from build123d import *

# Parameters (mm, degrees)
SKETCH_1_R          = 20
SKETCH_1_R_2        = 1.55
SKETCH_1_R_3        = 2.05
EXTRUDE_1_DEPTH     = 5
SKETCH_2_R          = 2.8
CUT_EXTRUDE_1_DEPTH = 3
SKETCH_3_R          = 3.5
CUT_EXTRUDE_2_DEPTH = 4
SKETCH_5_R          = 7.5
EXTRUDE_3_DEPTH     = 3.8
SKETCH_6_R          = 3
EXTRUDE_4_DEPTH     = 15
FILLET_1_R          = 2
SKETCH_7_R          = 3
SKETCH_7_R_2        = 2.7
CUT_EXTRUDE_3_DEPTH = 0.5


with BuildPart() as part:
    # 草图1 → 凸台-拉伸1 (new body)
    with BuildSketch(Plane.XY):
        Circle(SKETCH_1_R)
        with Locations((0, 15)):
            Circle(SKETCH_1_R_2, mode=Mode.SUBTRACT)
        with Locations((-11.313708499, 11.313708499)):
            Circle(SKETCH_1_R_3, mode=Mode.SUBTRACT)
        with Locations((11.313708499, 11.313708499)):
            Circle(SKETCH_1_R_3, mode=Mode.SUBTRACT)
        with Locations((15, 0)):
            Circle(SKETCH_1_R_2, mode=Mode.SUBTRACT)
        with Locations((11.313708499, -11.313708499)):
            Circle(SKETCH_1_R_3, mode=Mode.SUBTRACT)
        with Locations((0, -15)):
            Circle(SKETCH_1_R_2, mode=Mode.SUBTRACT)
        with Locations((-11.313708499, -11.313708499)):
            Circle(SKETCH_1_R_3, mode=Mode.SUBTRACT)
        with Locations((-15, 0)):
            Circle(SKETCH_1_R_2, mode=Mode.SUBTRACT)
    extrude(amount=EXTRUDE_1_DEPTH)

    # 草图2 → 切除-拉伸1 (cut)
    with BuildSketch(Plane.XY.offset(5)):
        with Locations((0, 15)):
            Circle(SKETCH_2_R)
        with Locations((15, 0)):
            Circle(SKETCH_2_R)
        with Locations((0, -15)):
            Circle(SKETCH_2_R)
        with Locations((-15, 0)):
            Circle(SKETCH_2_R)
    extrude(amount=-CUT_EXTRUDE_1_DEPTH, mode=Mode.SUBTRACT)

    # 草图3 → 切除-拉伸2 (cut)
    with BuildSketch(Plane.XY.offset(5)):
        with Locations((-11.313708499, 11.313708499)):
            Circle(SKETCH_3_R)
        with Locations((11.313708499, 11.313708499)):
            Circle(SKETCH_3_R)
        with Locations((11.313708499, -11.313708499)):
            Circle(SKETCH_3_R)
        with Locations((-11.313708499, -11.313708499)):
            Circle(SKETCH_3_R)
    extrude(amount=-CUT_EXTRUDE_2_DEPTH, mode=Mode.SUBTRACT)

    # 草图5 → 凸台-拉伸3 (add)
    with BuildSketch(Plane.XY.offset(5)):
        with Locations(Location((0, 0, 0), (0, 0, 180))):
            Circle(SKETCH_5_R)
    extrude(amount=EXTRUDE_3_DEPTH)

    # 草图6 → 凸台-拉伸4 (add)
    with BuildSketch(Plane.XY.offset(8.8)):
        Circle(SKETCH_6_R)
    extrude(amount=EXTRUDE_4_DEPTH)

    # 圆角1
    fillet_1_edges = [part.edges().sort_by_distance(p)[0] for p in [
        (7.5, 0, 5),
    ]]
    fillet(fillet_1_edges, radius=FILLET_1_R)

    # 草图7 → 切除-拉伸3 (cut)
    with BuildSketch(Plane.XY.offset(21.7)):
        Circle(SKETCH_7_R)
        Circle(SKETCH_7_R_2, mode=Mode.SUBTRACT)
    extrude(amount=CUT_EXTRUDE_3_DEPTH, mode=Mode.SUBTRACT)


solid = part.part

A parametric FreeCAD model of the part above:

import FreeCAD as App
import Part
import Sketcher
from FreeCAD import Vector


def edges_at(feature, points):
    """Names of the edges that pass closest to the given points."""
    edges = feature.Shape.Edges
    near = lambda p: min(range(len(edges)), key=lambda i: edges[i].distToShape(Part.Vertex(*p))[0])
    return sorted({f"Edge{near(p) + 1}" for p in points})

doc = App.newDocument("Part")
body = doc.addObject("PartDesign::Body", "Body")

# Sketch on XY plane
sketch1 = body.newObject("Sketcher::SketchObject", "Sketch")
sketch1.AttachmentSupport = (doc.getObject("XY_Plane"), [""])
sketch1.MapMode = "FlatFace"
sketch1.addGeometry([
    Part.Circle(Vector(0, 0, 0), Vector(0, 0, 1), 20),  # 0
    Part.Circle(Vector(-11.3, -11.3, 0), Vector(0, 0, 1), 2),  # 1
    Part.Circle(Vector(0, -15, 0), Vector(0, 0, 1), 1.6),  # 2
    Part.Circle(Vector(11.3, -11.3, 0), Vector(0, 0, 1), 2),  # 3
    Part.Circle(Vector(-15, 0, 0), Vector(0, 0, 1), 1.6),  # 4
    Part.Circle(Vector(-11.3, 11.3, 0), Vector(0, 0, 1), 2),  # 5
    Part.Circle(Vector(0, 15, 0), Vector(0, 0, 1), 1.6),  # 6
    Part.Circle(Vector(15, 0, 0), Vector(0, 0, 1), 1.6),  # 7
    Part.Circle(Vector(11.3, 11.3, 0), Vector(0, 0, 1), 2),  # 8
], False)
sketch1.addConstraint([
    Sketcher.Constraint("Coincident", 0, 3, -1, 1),
    Sketcher.Constraint("Equal", 1, 3),
    Sketcher.Constraint("Equal", 2, 4),
    Sketcher.Constraint("Equal", 3, 5),
    Sketcher.Constraint("Equal", 4, 6),
    Sketcher.Constraint("Equal", 6, 7),
    Sketcher.Constraint("Equal", 5, 8),
    Sketcher.Constraint("Symmetric", 3, 3, 5, 3, -1, 1),
    Sketcher.Constraint("Symmetric", 2, 3, 6, 3, -1, 1),
    Sketcher.Constraint("Symmetric", 4, 3, 7, 3, -1, 1),
    Sketcher.Constraint("Symmetric", 1, 3, 8, 3, -1, 1),
    Sketcher.Constraint("Symmetric", 1, 3, 3, 3, -2),
    Sketcher.Constraint("PointOnObject", 2, 3, -2),
    Sketcher.Constraint("PointOnObject", 4, 3, -1),
    Sketcher.Constraint("Diameter", 0, 40.0),
    Sketcher.Constraint("Diameter", 1, 4.1),
    Sketcher.Constraint("Diameter", 2, 3.1),
    Sketcher.Constraint("DistanceY", 2, 3, -1, 1, 15.0),
    Sketcher.Constraint("DistanceX", 4, 3, -1, 1, 15.0),
    Sketcher.Constraint("DistanceX", 1, 3, -1, 1, 11.313708),
    Sketcher.Constraint("DistanceY", 1, 3, -1, 1, 11.313708),
])
pad1 = body.newObject("PartDesign::Pad", "Pad")
pad1.Profile = sketch1
pad1.Length = 5

# Sketch on XY plane
sketch2 = body.newObject("Sketcher::SketchObject", "Sketch001")
sketch2.AttachmentSupport = (doc.getObject("XY_Plane"), [""])
sketch2.MapMode = "FlatFace"
sketch2.AttachmentOffset = App.Placement(Vector(0, 0, 5), App.Rotation())
sketch2.addGeometry([
    Part.Circle(Vector(0, 15, 0), Vector(0, 0, 1), 2.8),
    Part.Circle(Vector(15, 0, 0), Vector(0, 0, 1), 2.8),
    Part.Circle(Vector(0, -15, 0), Vector(0, 0, 1), 2.8),
    Part.Circle(Vector(-15, 0, 0), Vector(0, 0, 1), 2.8),
], False)
sketch2.addConstraint([
    Sketcher.Constraint("Equal", 0, 1),
    Sketcher.Constraint("Equal", 1, 2),
    Sketcher.Constraint("Equal", 2, 3),
    Sketcher.Constraint("Symmetric", 0, 3, 2, 3, -1, 1),
    Sketcher.Constraint("Symmetric", 1, 3, 3, 3, -1, 1),
    Sketcher.Constraint("PointOnObject", 0, 3, -2),
    Sketcher.Constraint("PointOnObject", 1, 3, -1),
    Sketcher.Constraint("Diameter", 0, 5.6),
    Sketcher.Constraint("DistanceY", -1, 1, 0, 3, 15.0),
    Sketcher.Constraint("DistanceX", -1, 1, 1, 3, 15.0),
])
pocket1 = body.newObject("PartDesign::Pocket", "Pocket")
pocket1.Profile = sketch2
pocket1.Length = 3

# Sketch on XY plane
sketch3 = body.newObject("Sketcher::SketchObject", "Sketch002")
sketch3.AttachmentSupport = (doc.getObject("XY_Plane"), [""])
sketch3.MapMode = "FlatFace"
sketch3.AttachmentOffset = App.Placement(Vector(0, 0, 5), App.Rotation())
sketch3.addGeometry([
    Part.Circle(Vector(-11.3, 11.3, 0), Vector(0, 0, 1), 3.5),
    Part.Circle(Vector(11.3, 11.3, 0), Vector(0, 0, 1), 3.5),
    Part.Circle(Vector(11.3, -11.3, 0), Vector(0, 0, 1), 3.5),
    Part.Circle(Vector(-11.3, -11.3, 0), Vector(0, 0, 1), 3.5),
], False)
sketch3.addConstraint([
    Sketcher.Constraint("Equal", 0, 1),
    Sketcher.Constraint("Equal", 1, 2),
    Sketcher.Constraint("Equal", 2, 3),
    Sketcher.Constraint("Symmetric", 0, 3, 2, 3, -1, 1),
    Sketcher.Constraint("Symmetric", 1, 3, 3, 3, -1, 1),
    Sketcher.Constraint("Symmetric", 0, 3, 1, 3, -2),
    Sketcher.Constraint("Diameter", 0, 7.0),
    Sketcher.Constraint("DistanceX", 0, 3, -1, 1, 11.313708),
    Sketcher.Constraint("DistanceY", -1, 1, 0, 3, 11.313708),
])
pocket2 = body.newObject("PartDesign::Pocket", "Pocket001")
pocket2.Profile = sketch3
pocket2.Length = 4

# Sketch on XY plane
sketch4 = body.newObject("Sketcher::SketchObject", "Sketch003")
sketch4.AttachmentSupport = (doc.getObject("XY_Plane"), [""])
sketch4.MapMode = "FlatFace"
sketch4.AttachmentOffset = App.Placement(Vector(0, 0, 5), App.Rotation())
sketch4.addGeometry(Part.Circle(Vector(0, 0, 0), Vector(0, 0, 1), 8), False)
sketch4.addConstraint([
    Sketcher.Constraint("Coincident", 0, 3, -1, 1),
    Sketcher.Constraint("Diameter", 0, 15.0),
])
pad2 = body.newObject("PartDesign::Pad", "Pad001")
pad2.Profile = sketch4
pad2.Length = 3.8

# Sketch on XY plane
sketch5 = body.newObject("Sketcher::SketchObject", "Sketch004")
sketch5.AttachmentSupport = (doc.getObject("XY_Plane"), [""])
sketch5.MapMode = "FlatFace"
sketch5.AttachmentOffset = App.Placement(Vector(0, 0, 8.8), App.Rotation())
sketch5.addGeometry(Part.Circle(Vector(0, 0, 0), Vector(0, 0, 1), 3), False)
sketch5.addConstraint([
    Sketcher.Constraint("Coincident", 0, 3, -1, 1),
    Sketcher.Constraint("Diameter", 0, 6.0),
])
pad3 = body.newObject("PartDesign::Pad", "Pad002")
pad3.Profile = sketch5
pad3.Length = 15
doc.recompute()

fillet = body.newObject("PartDesign::Fillet", "Fillet")
fillet.Base = (pad3, edges_at(pad3, [(7.5, 0, 5)]))
fillet.Radius = 2

# Sketch on XY plane
sketch6 = body.newObject("Sketcher::SketchObject", "Sketch005")
sketch6.AttachmentSupport = (doc.getObject("XY_Plane"), [""])
sketch6.MapMode = "FlatFace"
sketch6.AttachmentOffset = App.Placement(Vector(0, 0, 21.7), App.Rotation())
sketch6.addGeometry([
    Part.Circle(Vector(0, 0, 0), Vector(0, 0, 1), 3),
    Part.Circle(Vector(0, 0, 0), Vector(0, 0, 1), 2.7),
], False)
sketch6.addConstraint([
    Sketcher.Constraint("Coincident", 0, 3, -1, 1),
    Sketcher.Constraint("Coincident", 1, 3, -1, 1),
    Sketcher.Constraint("Diameter", 0, 6.0),
    Sketcher.Constraint("Diameter", 1, 5.4),
])
pocket3 = body.newObject("PartDesign::Pocket", "Pocket002")
pocket3.Profile = sketch6
pocket3.Length = 0.5
pocket3.Reversed = True

doc.recompute()
